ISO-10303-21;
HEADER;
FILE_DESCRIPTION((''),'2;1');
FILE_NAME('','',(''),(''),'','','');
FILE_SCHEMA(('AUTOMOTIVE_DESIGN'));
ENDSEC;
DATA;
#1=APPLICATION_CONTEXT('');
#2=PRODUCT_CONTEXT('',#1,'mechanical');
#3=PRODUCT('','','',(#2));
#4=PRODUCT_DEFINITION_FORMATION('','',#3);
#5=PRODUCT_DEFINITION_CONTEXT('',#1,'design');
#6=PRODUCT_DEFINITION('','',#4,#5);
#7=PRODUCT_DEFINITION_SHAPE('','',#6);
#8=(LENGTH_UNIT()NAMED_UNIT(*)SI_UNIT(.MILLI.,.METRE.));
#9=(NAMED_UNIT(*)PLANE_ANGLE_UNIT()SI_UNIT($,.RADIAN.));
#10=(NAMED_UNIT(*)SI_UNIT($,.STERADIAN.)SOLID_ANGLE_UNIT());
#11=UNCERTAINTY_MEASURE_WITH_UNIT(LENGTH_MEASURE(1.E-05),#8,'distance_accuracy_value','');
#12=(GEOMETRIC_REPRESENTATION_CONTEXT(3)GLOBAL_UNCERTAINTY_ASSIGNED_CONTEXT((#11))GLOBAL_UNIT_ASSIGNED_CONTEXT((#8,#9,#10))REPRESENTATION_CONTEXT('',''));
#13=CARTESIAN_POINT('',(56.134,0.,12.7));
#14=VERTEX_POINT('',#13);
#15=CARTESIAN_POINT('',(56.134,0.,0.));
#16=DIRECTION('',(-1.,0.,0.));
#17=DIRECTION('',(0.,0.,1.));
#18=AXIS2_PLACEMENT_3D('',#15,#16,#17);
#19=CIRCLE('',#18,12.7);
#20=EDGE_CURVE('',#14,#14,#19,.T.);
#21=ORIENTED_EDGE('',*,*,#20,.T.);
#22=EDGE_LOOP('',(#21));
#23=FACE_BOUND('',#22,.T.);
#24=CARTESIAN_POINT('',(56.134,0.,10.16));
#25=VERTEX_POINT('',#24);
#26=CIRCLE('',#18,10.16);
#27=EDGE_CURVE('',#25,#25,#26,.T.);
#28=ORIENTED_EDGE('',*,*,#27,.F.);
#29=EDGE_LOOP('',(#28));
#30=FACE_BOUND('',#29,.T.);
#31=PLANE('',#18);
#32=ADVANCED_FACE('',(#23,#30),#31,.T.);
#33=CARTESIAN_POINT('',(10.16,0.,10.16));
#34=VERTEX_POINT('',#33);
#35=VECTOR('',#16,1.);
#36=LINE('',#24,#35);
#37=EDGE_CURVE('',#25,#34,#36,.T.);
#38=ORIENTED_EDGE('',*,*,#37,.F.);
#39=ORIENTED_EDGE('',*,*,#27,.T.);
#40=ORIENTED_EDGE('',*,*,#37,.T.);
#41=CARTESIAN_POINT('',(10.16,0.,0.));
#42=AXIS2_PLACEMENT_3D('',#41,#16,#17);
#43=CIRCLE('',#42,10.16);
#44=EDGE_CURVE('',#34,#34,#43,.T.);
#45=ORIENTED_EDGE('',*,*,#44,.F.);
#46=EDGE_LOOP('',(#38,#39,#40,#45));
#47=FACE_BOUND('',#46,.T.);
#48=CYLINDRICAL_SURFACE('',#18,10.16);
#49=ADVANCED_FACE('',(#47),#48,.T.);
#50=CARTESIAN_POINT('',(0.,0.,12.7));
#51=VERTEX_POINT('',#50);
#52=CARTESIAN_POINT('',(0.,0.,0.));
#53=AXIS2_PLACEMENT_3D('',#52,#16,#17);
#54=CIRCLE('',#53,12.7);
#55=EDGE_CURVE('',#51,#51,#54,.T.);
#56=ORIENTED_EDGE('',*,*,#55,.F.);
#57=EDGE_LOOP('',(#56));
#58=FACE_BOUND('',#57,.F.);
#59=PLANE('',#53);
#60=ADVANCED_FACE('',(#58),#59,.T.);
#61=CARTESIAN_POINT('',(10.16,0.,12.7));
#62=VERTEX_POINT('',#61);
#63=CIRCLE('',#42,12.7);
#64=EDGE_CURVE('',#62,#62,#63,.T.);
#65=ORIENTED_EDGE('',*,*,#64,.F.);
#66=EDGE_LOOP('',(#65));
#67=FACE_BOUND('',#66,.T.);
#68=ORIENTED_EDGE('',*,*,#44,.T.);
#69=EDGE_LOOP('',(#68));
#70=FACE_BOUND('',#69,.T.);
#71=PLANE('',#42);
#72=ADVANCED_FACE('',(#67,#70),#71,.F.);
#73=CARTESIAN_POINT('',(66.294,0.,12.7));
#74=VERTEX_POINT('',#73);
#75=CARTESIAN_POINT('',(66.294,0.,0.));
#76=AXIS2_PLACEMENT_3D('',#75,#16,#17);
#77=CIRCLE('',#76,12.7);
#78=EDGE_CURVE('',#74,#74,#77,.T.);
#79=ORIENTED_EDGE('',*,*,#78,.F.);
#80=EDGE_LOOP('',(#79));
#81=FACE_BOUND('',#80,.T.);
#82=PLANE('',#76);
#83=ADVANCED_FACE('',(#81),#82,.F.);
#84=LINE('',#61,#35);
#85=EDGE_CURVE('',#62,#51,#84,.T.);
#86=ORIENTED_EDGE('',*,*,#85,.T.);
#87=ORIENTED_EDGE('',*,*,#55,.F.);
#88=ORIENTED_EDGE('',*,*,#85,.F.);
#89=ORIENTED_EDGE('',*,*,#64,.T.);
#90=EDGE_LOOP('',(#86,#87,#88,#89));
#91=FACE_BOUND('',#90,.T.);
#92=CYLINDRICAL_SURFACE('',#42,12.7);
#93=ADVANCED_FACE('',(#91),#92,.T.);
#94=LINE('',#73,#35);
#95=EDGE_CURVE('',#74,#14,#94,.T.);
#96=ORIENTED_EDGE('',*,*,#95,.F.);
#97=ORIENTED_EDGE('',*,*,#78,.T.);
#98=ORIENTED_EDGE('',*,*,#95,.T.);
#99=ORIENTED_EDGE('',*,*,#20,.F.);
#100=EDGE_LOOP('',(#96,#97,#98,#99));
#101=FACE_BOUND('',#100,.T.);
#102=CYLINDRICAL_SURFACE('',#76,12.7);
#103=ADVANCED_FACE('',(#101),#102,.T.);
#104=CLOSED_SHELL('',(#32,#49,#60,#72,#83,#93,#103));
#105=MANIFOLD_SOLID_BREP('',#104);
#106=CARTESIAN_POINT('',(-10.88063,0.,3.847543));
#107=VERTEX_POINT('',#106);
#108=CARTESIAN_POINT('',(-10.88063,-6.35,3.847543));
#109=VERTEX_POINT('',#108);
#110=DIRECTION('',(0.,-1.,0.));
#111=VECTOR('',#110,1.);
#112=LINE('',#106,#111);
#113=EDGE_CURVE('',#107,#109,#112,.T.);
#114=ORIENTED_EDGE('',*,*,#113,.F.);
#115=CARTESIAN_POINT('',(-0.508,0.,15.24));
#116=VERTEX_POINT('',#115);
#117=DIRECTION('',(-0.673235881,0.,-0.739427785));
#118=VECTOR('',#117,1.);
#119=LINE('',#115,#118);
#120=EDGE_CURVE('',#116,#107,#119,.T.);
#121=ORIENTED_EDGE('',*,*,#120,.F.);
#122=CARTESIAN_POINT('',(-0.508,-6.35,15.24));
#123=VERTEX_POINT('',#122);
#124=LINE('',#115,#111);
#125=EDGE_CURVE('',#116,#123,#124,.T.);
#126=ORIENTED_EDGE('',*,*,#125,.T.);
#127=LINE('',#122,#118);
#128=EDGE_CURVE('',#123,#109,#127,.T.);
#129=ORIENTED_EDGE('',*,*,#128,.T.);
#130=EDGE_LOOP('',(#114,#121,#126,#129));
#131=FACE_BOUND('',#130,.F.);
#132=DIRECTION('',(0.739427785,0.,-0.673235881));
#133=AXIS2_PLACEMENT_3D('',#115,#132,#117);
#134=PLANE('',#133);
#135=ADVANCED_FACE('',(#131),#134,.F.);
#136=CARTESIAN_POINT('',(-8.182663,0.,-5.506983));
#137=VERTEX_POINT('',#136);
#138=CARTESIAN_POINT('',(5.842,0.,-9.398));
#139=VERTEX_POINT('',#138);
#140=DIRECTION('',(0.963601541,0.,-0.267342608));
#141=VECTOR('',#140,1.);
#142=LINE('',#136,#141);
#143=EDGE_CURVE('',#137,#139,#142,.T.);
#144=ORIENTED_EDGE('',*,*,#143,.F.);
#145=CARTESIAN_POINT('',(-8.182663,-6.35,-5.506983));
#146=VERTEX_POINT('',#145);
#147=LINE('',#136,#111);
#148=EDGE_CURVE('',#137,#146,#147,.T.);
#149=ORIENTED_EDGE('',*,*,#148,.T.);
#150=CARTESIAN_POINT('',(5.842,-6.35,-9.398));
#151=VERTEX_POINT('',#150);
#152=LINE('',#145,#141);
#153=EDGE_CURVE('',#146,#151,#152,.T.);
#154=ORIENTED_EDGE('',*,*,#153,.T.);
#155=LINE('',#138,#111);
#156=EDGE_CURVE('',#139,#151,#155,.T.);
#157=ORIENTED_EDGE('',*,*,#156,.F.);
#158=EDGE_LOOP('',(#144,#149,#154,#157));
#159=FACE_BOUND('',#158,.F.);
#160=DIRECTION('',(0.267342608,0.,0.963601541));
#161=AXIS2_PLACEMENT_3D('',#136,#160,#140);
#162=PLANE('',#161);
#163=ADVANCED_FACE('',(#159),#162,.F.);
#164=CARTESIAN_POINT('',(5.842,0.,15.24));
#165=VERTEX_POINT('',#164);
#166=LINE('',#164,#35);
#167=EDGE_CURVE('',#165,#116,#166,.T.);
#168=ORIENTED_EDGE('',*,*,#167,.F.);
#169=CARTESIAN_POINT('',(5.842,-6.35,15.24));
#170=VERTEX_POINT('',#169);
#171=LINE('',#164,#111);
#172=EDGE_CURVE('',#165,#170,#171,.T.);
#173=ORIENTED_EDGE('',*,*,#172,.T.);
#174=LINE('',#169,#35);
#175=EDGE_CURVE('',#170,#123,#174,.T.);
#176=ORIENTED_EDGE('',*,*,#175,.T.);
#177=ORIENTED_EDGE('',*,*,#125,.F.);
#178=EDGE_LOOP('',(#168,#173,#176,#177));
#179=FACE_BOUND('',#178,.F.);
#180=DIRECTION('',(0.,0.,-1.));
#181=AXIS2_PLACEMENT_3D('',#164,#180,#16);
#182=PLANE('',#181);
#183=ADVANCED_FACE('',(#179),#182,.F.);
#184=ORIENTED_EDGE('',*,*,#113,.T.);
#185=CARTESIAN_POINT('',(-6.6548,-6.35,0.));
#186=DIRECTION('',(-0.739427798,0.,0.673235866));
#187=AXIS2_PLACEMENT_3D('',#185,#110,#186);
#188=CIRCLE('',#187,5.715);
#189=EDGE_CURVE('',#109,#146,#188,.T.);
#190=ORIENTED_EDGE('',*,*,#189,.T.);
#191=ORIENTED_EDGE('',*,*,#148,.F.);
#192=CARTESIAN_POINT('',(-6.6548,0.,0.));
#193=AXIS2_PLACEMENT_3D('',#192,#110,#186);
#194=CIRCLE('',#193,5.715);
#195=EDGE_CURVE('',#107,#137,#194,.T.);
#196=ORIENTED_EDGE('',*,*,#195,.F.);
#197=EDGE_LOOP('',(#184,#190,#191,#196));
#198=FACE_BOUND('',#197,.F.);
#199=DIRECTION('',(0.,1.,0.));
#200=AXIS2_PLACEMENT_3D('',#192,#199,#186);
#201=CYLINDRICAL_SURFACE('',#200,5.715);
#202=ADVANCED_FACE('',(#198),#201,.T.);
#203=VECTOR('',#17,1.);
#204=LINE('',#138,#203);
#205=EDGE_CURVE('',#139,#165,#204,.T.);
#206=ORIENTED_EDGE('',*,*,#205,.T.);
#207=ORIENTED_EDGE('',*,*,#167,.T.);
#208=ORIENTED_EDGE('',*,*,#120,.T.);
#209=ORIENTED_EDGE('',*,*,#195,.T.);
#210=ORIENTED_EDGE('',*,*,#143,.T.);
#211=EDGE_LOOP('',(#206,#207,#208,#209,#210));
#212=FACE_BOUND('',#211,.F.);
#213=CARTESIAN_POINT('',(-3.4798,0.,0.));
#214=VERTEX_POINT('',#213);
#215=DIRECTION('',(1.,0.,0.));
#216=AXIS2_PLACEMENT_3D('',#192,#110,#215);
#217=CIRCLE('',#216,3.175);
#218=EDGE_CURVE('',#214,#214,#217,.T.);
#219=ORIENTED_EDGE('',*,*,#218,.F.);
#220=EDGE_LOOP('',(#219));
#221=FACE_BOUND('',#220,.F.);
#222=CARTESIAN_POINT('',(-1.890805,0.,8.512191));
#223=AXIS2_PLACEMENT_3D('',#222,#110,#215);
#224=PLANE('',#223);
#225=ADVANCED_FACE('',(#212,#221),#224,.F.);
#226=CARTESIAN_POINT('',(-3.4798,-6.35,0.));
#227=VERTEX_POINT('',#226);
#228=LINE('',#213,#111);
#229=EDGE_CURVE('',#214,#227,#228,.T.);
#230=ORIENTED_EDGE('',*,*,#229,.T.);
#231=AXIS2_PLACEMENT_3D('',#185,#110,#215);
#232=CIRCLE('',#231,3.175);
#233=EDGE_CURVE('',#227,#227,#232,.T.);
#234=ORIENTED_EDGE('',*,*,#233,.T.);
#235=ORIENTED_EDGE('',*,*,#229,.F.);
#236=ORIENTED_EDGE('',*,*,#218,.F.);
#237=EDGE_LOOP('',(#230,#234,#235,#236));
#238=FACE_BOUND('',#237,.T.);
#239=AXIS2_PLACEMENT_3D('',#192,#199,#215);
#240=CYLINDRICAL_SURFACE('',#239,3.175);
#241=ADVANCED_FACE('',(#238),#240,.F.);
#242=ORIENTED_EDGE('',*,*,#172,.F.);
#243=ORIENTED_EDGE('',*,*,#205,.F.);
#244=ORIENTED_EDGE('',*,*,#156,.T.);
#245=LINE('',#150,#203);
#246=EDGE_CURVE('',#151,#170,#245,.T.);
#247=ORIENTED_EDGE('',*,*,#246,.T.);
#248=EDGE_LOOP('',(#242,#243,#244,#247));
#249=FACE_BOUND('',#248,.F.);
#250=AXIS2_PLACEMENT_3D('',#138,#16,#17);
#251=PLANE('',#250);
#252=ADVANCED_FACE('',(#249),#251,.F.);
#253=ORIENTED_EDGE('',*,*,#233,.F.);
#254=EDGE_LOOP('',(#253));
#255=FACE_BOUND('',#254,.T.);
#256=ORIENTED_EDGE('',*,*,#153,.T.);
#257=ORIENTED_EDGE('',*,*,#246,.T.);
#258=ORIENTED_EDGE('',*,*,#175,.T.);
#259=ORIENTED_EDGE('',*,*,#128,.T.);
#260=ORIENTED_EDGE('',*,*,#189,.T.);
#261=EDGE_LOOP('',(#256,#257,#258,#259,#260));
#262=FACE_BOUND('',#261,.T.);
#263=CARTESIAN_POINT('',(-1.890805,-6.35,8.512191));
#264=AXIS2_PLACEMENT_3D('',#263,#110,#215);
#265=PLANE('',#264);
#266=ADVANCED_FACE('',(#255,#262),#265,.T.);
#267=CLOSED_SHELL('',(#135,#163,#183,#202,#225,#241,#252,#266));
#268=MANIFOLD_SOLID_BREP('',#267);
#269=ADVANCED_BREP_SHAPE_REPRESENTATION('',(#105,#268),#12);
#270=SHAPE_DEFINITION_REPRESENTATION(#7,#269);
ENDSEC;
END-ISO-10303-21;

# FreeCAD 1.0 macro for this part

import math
import FreeCAD as App
import Part
import Sketcher

V = App.Vector
Q = App.Units.Quantity

doc = App.newDocument("Part")
params = doc.addObject("Spreadsheet::Sheet", "Params")
for row, (alias, value) in enumerate([
    ("sketch1_width", "0.4 in"),
    ("sketch1_height", "0.5 in"),
    ("sketch1_height2", "0.1 in"),
    ("sketch1_width2", "1.81 in"),
    ("revolution_angle", "360 deg"),
    ("sketch2_diameter", "0.25 in"),
    ("sketch2_radius", "0.225 in"),
    ("sketch2_width", "0.25 in"),
    ("sketch2_height", "0.97 in"),
    ("pad1_length", "0.25 in"),
], start=1):
    params.set(f"A{row}", alias)
    params.set(f"B{row}", "=" + value)
    params.setAlias(f"B{row}", alias)

body = doc.addObject("PartDesign::Body", "Body")

sketch1 = doc.addObject("Sketcher::SketchObject", "Sketch")
body.addObject(sketch1)
sketch1.AttachmentSupport = (doc.XZ_Plane, [""])
sketch1.MapMode = "FlatFace"
sketch1.addGeometry([
    Part.LineSegment(V(66.3, 0, 0), V(66.3, 12.7, 0)),
    Part.LineSegment(V(66.3, 12.7, 0), V(56.1, 12.7, 0)),
    Part.LineSegment(V(56.1, 12.7, 0), V(56.1, 10.2, 0)),
    Part.LineSegment(V(56.1, 10.2, 0), V(10.2, 10.2, 0)),
    Part.LineSegment(V(10.2, 10.2, 0), V(10.2, 12.7, 0)),
    Part.LineSegment(V(10.2, 12.7, 0), V(0, 12.7, 0)),
    Part.LineSegment(V(0, 12.7, 0), V(0, 0, 0)),
    Part.LineSegment(V(0, 0, 0), V(66.3, 0, 0)),
], False)
sketch1.addConstraint([
    Sketcher.Constraint("Coincident", 0, 2, 1, 1),
    Sketcher.Constraint("Coincident", 1, 2, 2, 1),
    Sketcher.Constraint("Coincident", 2, 2, 3, 1),
    Sketcher.Constraint("Coincident", 3, 2, 4, 1),
    Sketcher.Constraint("Coincident", 4, 2, 5, 1),
    Sketcher.Constraint("Coincident", 5, 2, 6, 1),
    Sketcher.Constraint("Coincident", 6, 2, 7, 1),
    Sketcher.Constraint("Coincident", 7, 2, 0, 1),
    Sketcher.Constraint("Vertical", 0),
    Sketcher.Constraint("Horizontal", 1),
    Sketcher.Constraint("Vertical", 2),
    Sketcher.Constraint("Horizontal", 3),
    Sketcher.Constraint("Vertical", 4),
    Sketcher.Constraint("Horizontal", 5),
    Sketcher.Constraint("Vertical", 6),
    Sketcher.Constraint("Horizontal", 7),
    Sketcher.Constraint("Coincident", 6, 2, -1, 1),
    Sketcher.Constraint("Horizontal", 1, 2, 4, 2),
    Sketcher.Constraint("Equal", 1, 5),
    Sketcher.Constraint("DistanceX", 1, 2, 1, 1, Q("0.4 in")),
    Sketcher.Constraint("DistanceY", 0, 1, 0, 2, Q("0.5 in")),
    Sketcher.Constraint("DistanceY", 2, 2, 2, 1, Q("0.1 in")),
    Sketcher.Constraint("DistanceX", 3, 2, 3, 1, Q("1.81 in")),
])
sketch1.setExpression("Constraints[19]", "Params.sketch1_width")
sketch1.setExpression("Constraints[20]", "Params.sketch1_height")
sketch1.setExpression("Constraints[21]", "Params.sketch1_height2")
sketch1.setExpression("Constraints[22]", "Params.sketch1_width2")
revolution = doc.addObject("PartDesign::Revolution", "Revolution")
body.addObject(revolution)
revolution.Profile = sketch1
revolution.ReferenceAxis = (sketch1, ["H_Axis"])
revolution.setExpression("Angle", "Params.revolution_angle")
body2 = doc.addObject("PartDesign::Body", "Body001")

sketch2 = doc.addObject("Sketcher::SketchObject", "Sketch001")
body2.addObject(sketch2)
sketch2.AttachmentSupport = (doc.getObject("XZ_Plane001"), [""])
sketch2.MapMode = "FlatFace"
sketch2.addGeometry([
    Part.LineSegment(V(5.8, 15.2, 0), V(-0.5, 15.2, 0)),
    Part.LineSegment(V(-0.5, 15.2, 0), V(-10.9, 3.8, 0)),
    Part.ArcOfCircle(Part.Circle(V(-6.7, 0, 0), V(0, 0, 1), 5.7), math.radians(138), math.radians(254)),
    Part.LineSegment(V(-8.2, -5.5, 0), V(5.8, -9.4, 0)),
    Part.LineSegment(V(5.8, -9.4, 0), V(5.8, 15.2, 0)),
    Part.Circle(V(-6.7, 0, 0), V(0, 0, 1), 3.2),
], False)
sketch2.addConstraint([
    Sketcher.Constraint("Coincident", 0, 2, 1, 1),
    Sketcher.Constraint("Tangent", 1, 2, 2, 1),
    Sketcher.Constraint("Tangent", 2, 2, 3, 1),
    Sketcher.Constraint("Coincident", 3, 2, 4, 1),
    Sketcher.Constraint("Coincident", 4, 2, 0, 1),
    Sketcher.Constraint("Horizontal", 0),
    Sketcher.Constraint("Vertical", 4),
    Sketcher.Constraint("Coincident", 5, 3, 2, 3),
    Sketcher.Constraint("PointOnObject", 2, 3, -1),
    Sketcher.Constraint("Diameter", 5, Q("0.25 in")),
    Sketcher.Constraint("Radius", 2, Q("0.225 in")),
    Sketcher.Constraint("DistanceX", 0, 2, 0, 1, Q("0.25 in")),
    Sketcher.Constraint("DistanceY", 4, 1, 4, 2, Q("0.97 in")),
    Sketcher.Constraint("DistanceY", -1, 1, 0, 2, Q("0.6 in")),
    Sketcher.Constraint("DistanceX", 0, 2, -1, 1, Q("0.02 in")),
    Sketcher.Constraint("DistanceX", 2, 3, -1, 1, Q("0.262 in")),
])
sketch2.setExpression("Constraints[9]", "Params.sketch2_diameter")
sketch2.setExpression("Constraints[10]", "Params.sketch2_radius")
sketch2.setExpression("Constraints[11]", "Params.sketch2_width")
sketch2.setExpression("Constraints[12]", "Params.sketch2_height")
pad1 = doc.addObject("PartDesign::Pad", "Pad")
body2.addObject(pad1)
pad1.Profile = sketch2
pad1.setExpression("Length", "Params.pad1_length")

doc.recompute()
